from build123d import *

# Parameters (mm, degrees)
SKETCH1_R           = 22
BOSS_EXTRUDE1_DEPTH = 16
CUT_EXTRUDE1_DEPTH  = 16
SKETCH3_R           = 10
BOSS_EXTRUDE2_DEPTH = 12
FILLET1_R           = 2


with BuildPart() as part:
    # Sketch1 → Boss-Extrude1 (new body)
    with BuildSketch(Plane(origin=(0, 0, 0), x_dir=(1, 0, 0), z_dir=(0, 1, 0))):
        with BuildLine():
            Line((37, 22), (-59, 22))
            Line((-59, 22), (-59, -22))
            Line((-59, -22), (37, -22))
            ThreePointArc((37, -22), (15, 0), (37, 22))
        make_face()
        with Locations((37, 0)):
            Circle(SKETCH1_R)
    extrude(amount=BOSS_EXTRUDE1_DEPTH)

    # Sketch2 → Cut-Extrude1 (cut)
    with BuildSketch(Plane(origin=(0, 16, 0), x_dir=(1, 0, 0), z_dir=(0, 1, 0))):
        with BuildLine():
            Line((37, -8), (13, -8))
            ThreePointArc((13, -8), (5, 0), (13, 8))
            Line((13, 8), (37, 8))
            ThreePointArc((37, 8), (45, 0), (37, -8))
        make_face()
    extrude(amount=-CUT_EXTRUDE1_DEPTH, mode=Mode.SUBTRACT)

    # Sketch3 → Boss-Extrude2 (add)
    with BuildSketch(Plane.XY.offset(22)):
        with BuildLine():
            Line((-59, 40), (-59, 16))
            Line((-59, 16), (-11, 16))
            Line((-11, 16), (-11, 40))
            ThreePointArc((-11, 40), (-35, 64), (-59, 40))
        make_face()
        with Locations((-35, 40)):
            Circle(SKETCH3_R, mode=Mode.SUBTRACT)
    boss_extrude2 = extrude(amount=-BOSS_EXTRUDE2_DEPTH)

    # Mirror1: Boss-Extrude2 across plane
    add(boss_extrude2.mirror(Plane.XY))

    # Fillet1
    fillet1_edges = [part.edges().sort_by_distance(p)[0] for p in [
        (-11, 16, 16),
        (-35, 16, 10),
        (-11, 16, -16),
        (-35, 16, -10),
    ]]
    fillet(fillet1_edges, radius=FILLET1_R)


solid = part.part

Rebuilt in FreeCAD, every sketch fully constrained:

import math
import FreeCAD as App
import Part
import Sketcher

V = App.Vector


def edges_at(feature, points):
    """Names of the edges that pass closest to the given points."""
    edges = feature.Shape.Edges
    near = lambda p: min(range(len(edges)), key=lambda i: edges[i].distToShape(Part.Vertex(*p))[0])
    return sorted({f"Edge{near(p) + 1}" for p in points})

doc = App.newDocument("Part")
body = doc.addObject("PartDesign::Body", "Body")

sketch1 = body.newObject("Sketcher::SketchObject", "Sketch")
sketch1.AttachmentSupport = (doc.getObject("XZ_Plane"), [""])
sketch1.MapMode = "FlatFace"
sketch1.addGeometry([
    Part.LineSegment(V(37, -22, 0), V(-59, -22, 0)),
    Part.LineSegment(V(-59, -22, 0), V(-59, 22, 0)),
    Part.LineSegment(V(-59, 22, 0), V(37, 22, 0)),
    Part.ArcOfCircle(Part.Circle(V(37, 0, 0), V(0, 0, 1), 22), math.radians(-90), math.radians(90)),
], False)
sketch1.addConstraint([
    Sketcher.Constraint("Coincident", 0, 2, 1, 1),
    Sketcher.Constraint("Coincident", 1, 2, 2, 1),
    Sketcher.Constraint("Tangent", 2, 2, 3, 2),
    Sketcher.Constraint("Tangent", 3, 1, 0, 1),
    Sketcher.Constraint("Horizontal", 0),
    Sketcher.Constraint("Vertical", 1),
    Sketcher.Constraint("Horizontal", 2),
    Sketcher.Constraint("PointOnObject", 3, 3, -1),
    Sketcher.Constraint("Radius", 3, 22.0),
    Sketcher.Constraint("DistanceX", 0, 2, 0, 1, 96.0),
    Sketcher.Constraint("DistanceX", -1, 1, 3, 3, 37.0),
])
pad1 = body.newObject("PartDesign::Pad", "Pad")
pad1.Profile = sketch1
pad1.Length = 16
pad1.Reversed = True

sketch2 = body.newObject("Sketcher::SketchObject", "Sketch001")
sketch2.AttachmentSupport = (doc.getObject("XZ_Plane"), [""])
sketch2.MapMode = "FlatFace"
sketch2.AttachmentOffset = App.Placement(V(0, 0, -16), App.Rotation())
sketch2.addGeometry([
    Part.LineSegment(V(13, 8, 0), V(37, 8, 0)),
    Part.ArcOfCircle(Part.Circle(V(37, 0, 0), V(0, 0, 1), 8), math.radians(-90), math.radians(90)),
    Part.LineSegment(V(37, -8, 0), V(13, -8, 0)),
    Part.ArcOfCircle(Part.Circle(V(13, 0, 0), V(0, 0, 1), 8), math.radians(90), math.radians(270)),
], False)
sketch2.addConstraint([
    Sketcher.Constraint("Tangent", 0, 2, 1, 2),
    Sketcher.Constraint("Tangent", 1, 1, 2, 1),
    Sketcher.Constraint("Tangent", 2, 2, 3, 2),
    Sketcher.Constraint("Tangent", 3, 1, 0, 1),
    Sketcher.Constraint("Horizontal", 0),
    Sketcher.Constraint("Horizontal", 2),
    Sketcher.Constraint("PointOnObject", 1, 3, -1),
    Sketcher.Constraint("Radius", 1, 8.0),
    Sketcher.Constraint("DistanceX", 0, 1, 0, 2, 24.0),
    Sketcher.Constraint("DistanceX", -1, 1, 1, 3, 37.0),
])
pocket1 = body.newObject("PartDesign::Pocket", "Pocket")
pocket1.Profile = sketch2
pocket1.Length = 16
pocket1.Reversed = True

sketch3 = body.newObject("Sketcher::SketchObject", "Sketch002")
sketch3.AttachmentSupport = (doc.getObject("XY_Plane"), [""])
sketch3.MapMode = "FlatFace"
sketch3.AttachmentOffset = App.Placement(V(0, 0, 22), App.Rotation())
sketch3.addGeometry([
    Part.LineSegment(V(-59, 40, 0), V(-59, 16, 0)),
    Part.LineSegment(V(-59, 16, 0), V(-11, 16, 0)),
    Part.LineSegment(V(-11, 16, 0), V(-11, 40, 0)),
    Part.ArcOfCircle(Part.Circle(V(-35, 40, 0), V(0, 0, 1), 24), math.radians(0), math.radians(180)),
    Part.Circle(V(-35, 40, 0), V(0, 0, 1), 10),
], False)
sketch3.addConstraint([
    Sketcher.Constraint("Coincident", 0, 2, 1, 1),
    Sketcher.Constraint("Coincident", 1, 2, 2, 1),
    Sketcher.Constraint("Tangent", 2, 2, 3, 1),
    Sketcher.Constraint("Tangent", 3, 2, 0, 1),
    Sketcher.Constraint("Vertical", 0),
    Sketcher.Constraint("Horizontal", 1),
    Sketcher.Constraint("Vertical", 2),
    Sketcher.Constraint("Coincident", 4, 3, 3, 3),
    Sketcher.Constraint("Diameter", 4, 20.0),
    Sketcher.Constraint("Radius", 3, 24.0),
    Sketcher.Constraint("DistanceY", 0, 2, 0, 1, 24.0),
    Sketcher.Constraint("DistanceX", 3, 3, -1, 1, 35.0),
    Sketcher.Constraint("DistanceY", -1, 1, 3, 3, 40.0),
])
pad2 = body.newObject("PartDesign::Pad", "Pad001")
pad2.Profile = sketch3
pad2.Length = 12
pad2.Reversed = True
doc.recompute()

mirrored = body.newObject("PartDesign::Mirrored", "Mirrored")
mirrored.Originals = [pad2]
mirrored.MirrorPlane = (doc.getObject("XY_Plane"), [""])
body.Tip = mirrored
doc.recompute()

fillet = body.newObject("PartDesign::Fillet", "Fillet")
fillet.Base = (mirrored, edges_at(mirrored, [
    (-11, 16, 16),
    (-35, 16, 10),
    (-11, 16, -16),
    (-35, 16, -10),
]))
fillet.Radius = 2

doc.recompute()
